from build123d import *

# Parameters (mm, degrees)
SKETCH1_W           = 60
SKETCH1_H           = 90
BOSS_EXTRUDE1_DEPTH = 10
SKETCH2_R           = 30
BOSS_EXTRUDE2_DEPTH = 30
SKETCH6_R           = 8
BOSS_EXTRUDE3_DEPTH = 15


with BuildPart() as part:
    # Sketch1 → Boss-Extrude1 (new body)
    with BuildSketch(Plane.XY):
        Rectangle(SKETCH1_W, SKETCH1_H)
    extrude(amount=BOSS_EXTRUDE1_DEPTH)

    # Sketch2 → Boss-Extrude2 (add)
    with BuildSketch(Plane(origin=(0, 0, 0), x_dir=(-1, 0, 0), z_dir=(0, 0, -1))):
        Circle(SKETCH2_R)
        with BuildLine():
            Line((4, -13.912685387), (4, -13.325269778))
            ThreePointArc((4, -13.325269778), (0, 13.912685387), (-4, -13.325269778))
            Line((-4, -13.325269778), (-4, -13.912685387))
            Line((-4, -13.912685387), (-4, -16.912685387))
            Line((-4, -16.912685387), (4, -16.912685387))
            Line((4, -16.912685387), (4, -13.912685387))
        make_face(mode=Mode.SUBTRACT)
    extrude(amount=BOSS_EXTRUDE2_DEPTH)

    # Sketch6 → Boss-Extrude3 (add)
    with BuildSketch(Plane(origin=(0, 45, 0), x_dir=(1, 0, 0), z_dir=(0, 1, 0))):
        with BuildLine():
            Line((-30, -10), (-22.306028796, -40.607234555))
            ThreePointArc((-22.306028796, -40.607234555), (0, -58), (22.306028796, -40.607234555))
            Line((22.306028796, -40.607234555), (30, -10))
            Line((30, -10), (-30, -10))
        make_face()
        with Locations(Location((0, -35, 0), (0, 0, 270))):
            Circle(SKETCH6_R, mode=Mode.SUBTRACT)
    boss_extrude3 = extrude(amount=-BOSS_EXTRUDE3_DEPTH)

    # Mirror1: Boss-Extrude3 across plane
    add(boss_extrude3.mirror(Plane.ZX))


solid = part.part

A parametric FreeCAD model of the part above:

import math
import FreeCAD as App
import Part
import Sketcher

doc = App.newDocument("Part")
body = doc.addObject("PartDesign::Body", "Body")

# Sketch on XY plane
sketch1 = body.newObject("Sketcher::SketchObject", "Sketch")
sketch1.AttachmentSupport = (doc.getObject("XY_Plane"), [""])
sketch1.MapMode = "FlatFace"
sketch1.addGeometry([
    Part.LineSegment(App.Vector(-30, 45, 0), App.Vector(-30, -45, 0)),
    Part.LineSegment(App.Vector(-30, -45, 0), App.Vector(30, -45, 0)),
    Part.LineSegment(App.Vector(30, -45, 0), App.Vector(30, 45, 0)),
    Part.LineSegment(App.Vector(30, 45, 0), App.Vector(-30, 45, 0)),
], False)
sketch1.addConstraint([
    Sketcher.Constraint("Coincident", 0, 2, 1, 1),
    Sketcher.Constraint("Coincident", 1, 2, 2, 1),
    Sketcher.Constraint("Coincident", 2, 2, 3, 1),
    Sketcher.Constraint("Coincident", 3, 2, 0, 1),
    Sketcher.Constraint("Vertical", 0),
    Sketcher.Constraint("Horizontal", 1),
    Sketcher.Constraint("Vertical", 2),
    Sketcher.Constraint("Horizontal", 3),
    Sketcher.Constraint("Symmetric", 0, 2, 2, 2, -1, 1),
    Sketcher.Constraint("DistanceX", 1, 1, 1, 2, 60.0),
    Sketcher.Constraint("DistanceY", 0, 2, 0, 1, 90.0),
])
pad1 = body.newObject("PartDesign::Pad", "Pad")
pad1.Profile = sketch1
pad1.Length = 10

# Sketch on XY plane
sketch2 = body.newObject("Sketcher::SketchObject", "Sketch001")
sketch2.AttachmentSupport = (doc.getObject("XY_Plane"), [""])
sketch2.MapMode = "FlatFace"
sketch2.addGeometry([
    Part.Circle(App.Vector(0, 0, 0), App.Vector(0, 0, 1), 30),  # 0
    Part.ArcOfCircle(Part.Circle(App.Vector(0, 0, 0), App.Vector(0, 0, 1), 13.9), math.radians(-73), math.radians(253)),  # 1
    Part.LineSegment(App.Vector(-4, -13.3, 0), App.Vector(-4, -16.9, 0)),  # 2
    Part.LineSegment(App.Vector(-4, -16.9, 0), App.Vector(4, -16.9, 0)),  # 3
    Part.LineSegment(App.Vector(4, -16.9, 0), App.Vector(4, -13.3, 0)),  # 4
], False)
sketch2.addConstraint([
    Sketcher.Constraint("Coincident", 1, 2, 2, 1),
    Sketcher.Constraint("Coincident", 2, 2, 3, 1),
    Sketcher.Constraint("Coincident", 3, 2, 4, 1),
    Sketcher.Constraint("Coincident", 4, 2, 1, 1),
    Sketcher.Constraint("Vertical", 2),
    Sketcher.Constraint("Horizontal", 3),
    Sketcher.Constraint("Vertical", 4),
    Sketcher.Constraint("Coincident", 0, 3, -1, 1),
    Sketcher.Constraint("Coincident", 1, 3, -1, 1),
    Sketcher.Constraint("Horizontal", 1, 2, 4, 2),
    Sketcher.Constraint("Diameter", 0, 60.0),
    Sketcher.Constraint("DistanceX", 3, 1, 3, 2, 8.0),
    Sketcher.Constraint("Radius", 1, 13.912685),
    Sketcher.Constraint("DistanceY", 2, 2, 2, 1, 3.587416),
])
pad2 = body.newObject("PartDesign::Pad", "Pad001")
pad2.Profile = sketch2
pad2.Length = 30
pad2.Reversed = True

# Sketch on XZ plane
sketch3 = body.newObject("Sketcher::SketchObject", "Sketch002")
sketch3.AttachmentSupport = (doc.getObject("XZ_Plane"), [""])
sketch3.MapMode = "FlatFace"
sketch3.AttachmentOffset = App.Placement(App.Vector(0, 0, -45), App.Rotation())
sketch3.addGeometry([
    Part.LineSegment(App.Vector(-30, 10, 0), App.Vector(-22, 41, 0)),  # 0
    Part.ArcOfCircle(Part.Circle(App.Vector(0, 35, 0), App.Vector(0, 0, 1), 23), math.radians(14), math.radians(166)),  # 1
    Part.LineSegment(App.Vector(22, 41, 0), App.Vector(30, 10, 0)),  # 2
    Part.LineSegment(App.Vector(30, 10, 0), App.Vector(-30, 10, 0)),  # 3
    Part.Circle(App.Vector(0, 35, 0), App.Vector(0, 0, 1), 8),  # 4
], False)
sketch3.addConstraint([
    Sketcher.Constraint("Tangent", 0, 2, 1, 2),
    Sketcher.Constraint("Tangent", 1, 1, 2, 1),
    Sketcher.Constraint("Coincident", 2, 2, 3, 1),
    Sketcher.Constraint("Coincident", 3, 2, 0, 1),
    Sketcher.Constraint("Horizontal", 3),
    Sketcher.Constraint("Coincident", 4, 3, 1, 3),
    Sketcher.Constraint("Symmetric", 0, 2, 1, 1, -2),
    Sketcher.Constraint("Diameter", 4, 16.0),
    Sketcher.Constraint("Radius", 1, 23.0),
    Sketcher.Constraint("DistanceX", 3, 2, 3, 1, 60.0),
    Sketcher.Constraint("DistanceY", -1, 1, 1, 3, 35.0),
    Sketcher.Constraint("DistanceY", -1, 1, 2, 2, 10.0),
])
pad3 = body.newObject("PartDesign::Pad", "Pad002")
pad3.Profile = sketch3
pad3.Length = 15
doc.recompute()

mirrored = body.newObject("PartDesign::Mirrored", "Mirrored")
mirrored.Originals = [pad3]
mirrored.MirrorPlane = (doc.getObject("XZ_Plane"), [""])
body.Tip = mirrored

doc.recompute()
